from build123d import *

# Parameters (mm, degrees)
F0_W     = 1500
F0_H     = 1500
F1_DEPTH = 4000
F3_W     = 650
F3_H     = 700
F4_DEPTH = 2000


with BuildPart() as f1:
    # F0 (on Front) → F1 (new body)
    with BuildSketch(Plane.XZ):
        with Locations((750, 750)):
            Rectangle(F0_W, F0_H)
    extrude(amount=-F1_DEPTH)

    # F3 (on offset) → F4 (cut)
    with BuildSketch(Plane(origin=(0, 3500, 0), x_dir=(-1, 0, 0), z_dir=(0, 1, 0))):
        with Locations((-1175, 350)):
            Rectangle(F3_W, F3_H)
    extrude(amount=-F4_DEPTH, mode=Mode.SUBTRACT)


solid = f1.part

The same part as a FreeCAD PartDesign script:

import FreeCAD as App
import Part
import Sketcher
from FreeCAD import Vector

doc = App.newDocument("Part")
body = doc.addObject("PartDesign::Body", "Body")

# Sketch on XZ plane
sketch1 = body.newObject("Sketcher::SketchObject", "Sketch")
sketch1.AttachmentSupport = (doc.getObject("XZ_Plane"), [""])
sketch1.MapMode = "FlatFace"
sketch1.addGeometry([
    Part.LineSegment(Vector(0, 1500, 0), Vector(0, 0, 0)),
    Part.LineSegment(Vector(0, 0, 0), Vector(1500, 0, 0)),
    Part.LineSegment(Vector(1500, 0, 0), Vector(1500, 1500, 0)),
    Part.LineSegment(Vector(1500, 1500, 0), Vector(0, 1500, 0)),
], False)
sketch1.addConstraint([
    Sketcher.Constraint("Coincident", 0, 2, 1, 1),
    Sketcher.Constraint("Coincident", 1, 2, 2, 1),
    Sketcher.Constraint("Coincident", 2, 2, 3, 1),
    Sketcher.Constraint("Coincident", 3, 2, 0, 1),
    Sketcher.Constraint("Vertical", 0),
    Sketcher.Constraint("Horizontal", 1),
    Sketcher.Constraint("Vertical", 2),
    Sketcher.Constraint("Horizontal", 3),
    Sketcher.Constraint("Coincident", 0, 2, -1, 1),
    Sketcher.Constraint("Equal", 3, 0),
    Sketcher.Constraint("DistanceX", 1, 1, 1, 2, 1500.0),
])
pad1 = body.newObject("PartDesign::Pad", "Pad")
pad1.Profile = sketch1
pad1.Length = 4000
pad1.Reversed = True

# Sketch on XZ plane
sketch2 = body.newObject("Sketcher::SketchObject", "Sketch001")
sketch2.AttachmentSupport = (doc.getObject("XZ_Plane"), [""])
sketch2.MapMode = "FlatFace"
sketch2.AttachmentOffset = App.Placement(Vector(0, 0, -3500), App.Rotation())
sketch2.addGeometry([
    Part.LineSegment(Vector(1500, 700, 0), Vector(1500, 0, 0)),
    Part.LineSegment(Vector(1500, 0, 0), Vector(850, 0, 0)),
    Part.LineSegment(Vector(850, 0, 0), Vector(850, 700, 0)),
    Part.LineSegment(Vector(850, 700, 0), Vector(1500, 700, 0)),
], False)
sketch2.addConstraint([
    Sketcher.Constraint("Coincident", 0, 2, 1, 1),
    Sketcher.Constraint("Coincident", 1, 2, 2, 1),
    Sketcher.Constraint("Coincident", 2, 2, 3, 1),
    Sketcher.Constraint("Coincident", 3, 2, 0, 1),
    Sketcher.Constraint("Vertical", 0),
    Sketcher.Constraint("Horizontal", 1),
    Sketcher.Constraint("Vertical", 2),
    Sketcher.Constraint("Horizontal", 3),
    Sketcher.Constraint("PointOnObject", 0, 2, -1),
    Sketcher.Constraint("DistanceX", 1, 2, 1, 1, 650.0),
    Sketcher.Constraint("DistanceY", 0, 2, 0, 1, 700.0),
    Sketcher.Constraint("DistanceX", -1, 1, 0, 2, 1500.0),
])
pocket1 = body.newObject("PartDesign::Pocket", "Pocket")
pocket1.Profile = sketch2
pocket1.Length = 2000
pocket1.Reversed = True

doc.recompute()
